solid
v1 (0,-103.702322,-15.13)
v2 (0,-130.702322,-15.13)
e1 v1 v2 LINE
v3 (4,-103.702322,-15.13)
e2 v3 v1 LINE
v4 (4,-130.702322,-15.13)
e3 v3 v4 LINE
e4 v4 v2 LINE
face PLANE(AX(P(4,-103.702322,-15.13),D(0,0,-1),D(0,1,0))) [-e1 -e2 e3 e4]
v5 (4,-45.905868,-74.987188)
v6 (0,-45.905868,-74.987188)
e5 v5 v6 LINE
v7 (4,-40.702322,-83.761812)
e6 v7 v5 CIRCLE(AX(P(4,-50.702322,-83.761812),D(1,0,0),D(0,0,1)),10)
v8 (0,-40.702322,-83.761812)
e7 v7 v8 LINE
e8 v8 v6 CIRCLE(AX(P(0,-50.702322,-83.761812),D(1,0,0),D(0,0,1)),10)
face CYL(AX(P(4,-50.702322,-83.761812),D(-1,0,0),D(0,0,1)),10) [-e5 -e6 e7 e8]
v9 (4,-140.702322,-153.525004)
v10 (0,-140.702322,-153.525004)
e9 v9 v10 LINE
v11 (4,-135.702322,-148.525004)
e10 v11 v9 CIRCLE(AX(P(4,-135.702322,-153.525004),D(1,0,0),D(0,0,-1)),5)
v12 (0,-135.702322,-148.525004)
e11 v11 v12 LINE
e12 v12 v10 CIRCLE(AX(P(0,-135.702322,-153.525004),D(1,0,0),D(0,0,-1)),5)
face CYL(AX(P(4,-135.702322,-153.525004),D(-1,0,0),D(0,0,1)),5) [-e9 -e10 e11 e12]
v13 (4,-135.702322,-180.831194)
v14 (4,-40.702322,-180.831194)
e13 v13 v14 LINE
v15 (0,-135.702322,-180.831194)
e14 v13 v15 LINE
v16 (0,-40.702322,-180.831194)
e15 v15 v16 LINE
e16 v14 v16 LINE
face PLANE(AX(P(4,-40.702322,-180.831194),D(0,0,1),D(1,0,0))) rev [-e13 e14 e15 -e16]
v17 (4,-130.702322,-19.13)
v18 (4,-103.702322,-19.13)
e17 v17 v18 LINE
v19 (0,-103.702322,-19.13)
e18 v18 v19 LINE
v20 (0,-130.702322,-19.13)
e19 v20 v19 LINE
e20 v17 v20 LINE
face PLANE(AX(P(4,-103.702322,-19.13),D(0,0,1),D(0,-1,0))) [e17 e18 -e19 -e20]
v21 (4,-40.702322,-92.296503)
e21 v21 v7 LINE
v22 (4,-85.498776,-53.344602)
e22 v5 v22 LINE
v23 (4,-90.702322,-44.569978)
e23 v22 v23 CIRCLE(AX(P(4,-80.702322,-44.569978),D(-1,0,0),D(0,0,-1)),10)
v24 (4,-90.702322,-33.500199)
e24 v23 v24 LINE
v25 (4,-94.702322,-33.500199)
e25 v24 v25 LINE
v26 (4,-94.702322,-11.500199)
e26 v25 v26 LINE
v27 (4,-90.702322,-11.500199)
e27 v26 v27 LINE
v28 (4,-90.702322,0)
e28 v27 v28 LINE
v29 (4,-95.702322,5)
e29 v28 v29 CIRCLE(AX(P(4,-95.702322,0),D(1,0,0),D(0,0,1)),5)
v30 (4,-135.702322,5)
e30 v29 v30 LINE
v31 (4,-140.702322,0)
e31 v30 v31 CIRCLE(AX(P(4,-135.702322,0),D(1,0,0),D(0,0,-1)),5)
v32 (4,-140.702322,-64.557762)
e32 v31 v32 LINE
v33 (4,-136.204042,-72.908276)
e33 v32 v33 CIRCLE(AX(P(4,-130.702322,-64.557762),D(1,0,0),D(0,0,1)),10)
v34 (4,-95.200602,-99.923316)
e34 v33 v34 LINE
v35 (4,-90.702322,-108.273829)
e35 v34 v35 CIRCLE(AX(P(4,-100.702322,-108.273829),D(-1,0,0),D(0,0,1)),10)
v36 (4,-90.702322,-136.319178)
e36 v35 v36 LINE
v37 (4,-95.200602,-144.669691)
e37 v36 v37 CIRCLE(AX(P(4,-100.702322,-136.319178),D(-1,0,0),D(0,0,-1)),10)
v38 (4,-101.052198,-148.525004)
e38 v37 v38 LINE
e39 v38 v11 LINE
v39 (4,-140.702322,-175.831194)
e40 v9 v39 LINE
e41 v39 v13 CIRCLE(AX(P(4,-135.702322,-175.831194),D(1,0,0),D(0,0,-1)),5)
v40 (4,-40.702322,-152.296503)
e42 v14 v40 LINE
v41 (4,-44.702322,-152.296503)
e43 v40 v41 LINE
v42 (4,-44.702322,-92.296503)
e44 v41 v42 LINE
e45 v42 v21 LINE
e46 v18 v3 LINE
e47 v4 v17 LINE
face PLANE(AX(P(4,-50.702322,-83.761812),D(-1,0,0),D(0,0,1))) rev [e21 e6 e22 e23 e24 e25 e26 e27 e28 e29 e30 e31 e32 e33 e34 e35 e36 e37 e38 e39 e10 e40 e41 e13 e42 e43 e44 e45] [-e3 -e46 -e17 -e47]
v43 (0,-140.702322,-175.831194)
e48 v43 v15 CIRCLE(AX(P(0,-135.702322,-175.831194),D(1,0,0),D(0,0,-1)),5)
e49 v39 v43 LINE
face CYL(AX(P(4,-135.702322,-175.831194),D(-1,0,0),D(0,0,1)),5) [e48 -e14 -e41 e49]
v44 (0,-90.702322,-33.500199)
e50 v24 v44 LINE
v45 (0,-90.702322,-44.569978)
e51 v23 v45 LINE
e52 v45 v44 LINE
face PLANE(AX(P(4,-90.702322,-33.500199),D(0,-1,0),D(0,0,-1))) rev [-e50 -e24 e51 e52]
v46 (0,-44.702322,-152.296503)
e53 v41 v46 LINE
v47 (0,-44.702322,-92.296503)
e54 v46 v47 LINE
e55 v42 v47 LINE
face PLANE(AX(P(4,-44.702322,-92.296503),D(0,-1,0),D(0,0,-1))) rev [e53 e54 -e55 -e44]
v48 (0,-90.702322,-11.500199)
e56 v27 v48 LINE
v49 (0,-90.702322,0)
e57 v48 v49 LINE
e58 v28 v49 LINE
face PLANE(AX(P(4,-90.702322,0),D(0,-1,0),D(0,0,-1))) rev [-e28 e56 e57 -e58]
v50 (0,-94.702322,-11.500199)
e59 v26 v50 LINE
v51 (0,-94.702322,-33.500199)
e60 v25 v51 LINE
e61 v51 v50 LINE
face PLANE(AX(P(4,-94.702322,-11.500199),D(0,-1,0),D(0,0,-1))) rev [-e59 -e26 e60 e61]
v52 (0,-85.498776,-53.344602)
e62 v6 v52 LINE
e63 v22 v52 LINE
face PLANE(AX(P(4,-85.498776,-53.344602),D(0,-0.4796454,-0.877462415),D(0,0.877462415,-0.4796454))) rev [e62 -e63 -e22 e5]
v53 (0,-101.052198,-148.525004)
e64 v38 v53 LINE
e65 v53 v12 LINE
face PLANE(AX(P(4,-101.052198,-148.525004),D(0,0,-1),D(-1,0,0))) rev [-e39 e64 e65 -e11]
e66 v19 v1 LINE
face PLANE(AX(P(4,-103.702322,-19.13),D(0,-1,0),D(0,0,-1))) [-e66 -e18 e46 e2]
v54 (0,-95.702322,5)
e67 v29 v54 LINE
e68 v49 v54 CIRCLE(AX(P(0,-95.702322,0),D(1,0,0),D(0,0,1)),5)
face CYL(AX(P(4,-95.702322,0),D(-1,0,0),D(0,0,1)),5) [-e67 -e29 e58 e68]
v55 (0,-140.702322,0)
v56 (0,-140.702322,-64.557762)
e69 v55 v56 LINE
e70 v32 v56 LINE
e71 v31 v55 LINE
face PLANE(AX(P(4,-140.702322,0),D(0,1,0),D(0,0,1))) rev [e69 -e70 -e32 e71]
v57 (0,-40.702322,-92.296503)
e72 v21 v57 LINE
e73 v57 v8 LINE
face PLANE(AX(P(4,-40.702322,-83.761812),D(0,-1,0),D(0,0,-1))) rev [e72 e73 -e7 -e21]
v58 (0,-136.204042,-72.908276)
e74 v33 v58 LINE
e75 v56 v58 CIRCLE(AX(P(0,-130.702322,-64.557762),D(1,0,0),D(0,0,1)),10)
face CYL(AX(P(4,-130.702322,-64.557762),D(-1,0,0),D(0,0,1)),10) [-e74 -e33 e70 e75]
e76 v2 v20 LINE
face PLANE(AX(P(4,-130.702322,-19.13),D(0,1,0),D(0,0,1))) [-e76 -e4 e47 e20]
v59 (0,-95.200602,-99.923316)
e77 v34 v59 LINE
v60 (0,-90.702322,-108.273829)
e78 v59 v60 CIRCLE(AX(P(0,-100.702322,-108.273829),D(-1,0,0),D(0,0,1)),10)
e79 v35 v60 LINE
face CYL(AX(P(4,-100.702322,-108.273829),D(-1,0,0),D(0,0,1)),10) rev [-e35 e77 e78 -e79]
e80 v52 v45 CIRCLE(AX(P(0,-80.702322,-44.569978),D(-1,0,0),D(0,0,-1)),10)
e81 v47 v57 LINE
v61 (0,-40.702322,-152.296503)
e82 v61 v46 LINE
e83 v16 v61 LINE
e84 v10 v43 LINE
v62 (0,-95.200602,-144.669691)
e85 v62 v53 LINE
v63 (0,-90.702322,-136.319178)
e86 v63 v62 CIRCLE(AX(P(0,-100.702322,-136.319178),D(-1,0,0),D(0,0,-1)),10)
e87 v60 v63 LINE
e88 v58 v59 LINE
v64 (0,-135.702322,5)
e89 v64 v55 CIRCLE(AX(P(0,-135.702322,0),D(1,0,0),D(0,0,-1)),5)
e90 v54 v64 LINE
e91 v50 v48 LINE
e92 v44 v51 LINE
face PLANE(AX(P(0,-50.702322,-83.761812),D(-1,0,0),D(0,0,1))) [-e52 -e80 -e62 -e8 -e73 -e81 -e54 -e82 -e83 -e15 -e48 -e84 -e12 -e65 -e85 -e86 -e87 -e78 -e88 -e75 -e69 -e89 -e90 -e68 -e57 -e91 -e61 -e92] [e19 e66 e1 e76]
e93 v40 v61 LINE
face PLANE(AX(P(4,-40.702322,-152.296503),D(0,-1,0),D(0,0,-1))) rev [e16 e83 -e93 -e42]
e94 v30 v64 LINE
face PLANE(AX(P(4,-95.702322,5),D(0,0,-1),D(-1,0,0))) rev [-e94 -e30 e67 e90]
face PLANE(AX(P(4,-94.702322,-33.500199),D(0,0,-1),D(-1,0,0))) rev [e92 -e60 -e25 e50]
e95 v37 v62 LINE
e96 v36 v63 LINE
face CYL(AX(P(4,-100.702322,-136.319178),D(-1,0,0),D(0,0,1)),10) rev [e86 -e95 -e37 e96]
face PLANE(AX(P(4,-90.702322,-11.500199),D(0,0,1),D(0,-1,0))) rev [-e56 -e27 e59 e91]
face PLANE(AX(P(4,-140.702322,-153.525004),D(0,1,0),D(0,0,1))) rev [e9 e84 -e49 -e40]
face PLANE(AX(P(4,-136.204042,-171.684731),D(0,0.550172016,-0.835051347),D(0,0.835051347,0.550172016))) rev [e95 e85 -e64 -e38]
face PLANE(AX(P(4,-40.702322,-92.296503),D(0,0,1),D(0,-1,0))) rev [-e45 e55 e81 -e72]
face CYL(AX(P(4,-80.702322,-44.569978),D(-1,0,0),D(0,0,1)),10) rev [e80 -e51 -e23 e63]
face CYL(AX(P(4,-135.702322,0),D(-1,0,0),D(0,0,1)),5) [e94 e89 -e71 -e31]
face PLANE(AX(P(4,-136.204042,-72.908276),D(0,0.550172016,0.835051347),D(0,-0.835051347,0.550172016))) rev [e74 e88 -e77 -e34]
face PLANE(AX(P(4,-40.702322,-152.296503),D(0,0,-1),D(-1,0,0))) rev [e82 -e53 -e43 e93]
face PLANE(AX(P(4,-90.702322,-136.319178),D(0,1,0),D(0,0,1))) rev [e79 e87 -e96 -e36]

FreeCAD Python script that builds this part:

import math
import FreeCAD as App
import Part
import Sketcher
from FreeCAD import Vector

doc = App.newDocument("Part")
body = doc.addObject("PartDesign::Body", "Body")

sketch1 = body.newObject("Sketcher::SketchObject", "Sketch")
sketch1.AttachmentSupport = (doc.getObject("YZ_Plane"), [""])
sketch1.MapMode = "FlatFace"
sketch1.addGeometry(Part.LineSegment(Vector(-45.9, -75, 0), Vector(-85.5, -53.3, 0)), False)
sketch1.addGeometry(Part.ArcOfCircle(Part.Circle(Vector(-80.7, -44.6, 0), Vector(0, 0, 1), 10), math.radians(180), math.radians(241)), False)
sketch1.addGeometry(Part.LineSegment(Vector(-90.7, -44.6, 0), Vector(-90.7, -33.5, 0)), False)
sketch1.addGeometry(Part.LineSegment(Vector(-90.7, -33.5, 0), Vector(-94.7, -33.5, 0)), False)
sketch1.addGeometry(Part.LineSegment(Vector(-94.7, -33.5, 0), Vector(-94.7, -11.5, 0)), False)
sketch1.addGeometry(Part.LineSegment(Vector(-94.7, -11.5, 0), Vector(-90.7, -11.5, 0)), False)
sketch1.addGeometry(Part.LineSegment(Vector(-90.7, -11.5, 0), Vector(-90.7, 0, 0)), False)
sketch1.addGeometry(Part.ArcOfCircle(Part.Circle(Vector(-95.7, 0, 0), Vector(0, 0, 1), 5), math.radians(0), math.radians(90)), False)
sketch1.addGeometry(Part.LineSegment(Vector(-95.7, 5, 0), Vector(-135.7, 5, 0)), False)
sketch1.addGeometry(Part.ArcOfCircle(Part.Circle(Vector(-135.7, 0, 0), Vector(0, 0, 1), 5), math.radians(90), math.radians(180)), False)
sketch1.addGeometry(Part.LineSegment(Vector(-140.7, 0, 0), Vector(-140.7, -64.6, 0)), False)
sketch1.addGeometry(Part.ArcOfCircle(Part.Circle(Vector(-130.7, -64.6, 0), Vector(0, 0, 1), 10), math.radians(-180), math.radians(-123)), False)
sketch1.addGeometry(Part.LineSegment(Vector(-136.2, -72.9, 0), Vector(-95.2, -99.9, 0)), False)
sketch1.addGeometry(Part.ArcOfCircle(Part.Circle(Vector(-100.7, -108.3, 0), Vector(0, 0, 1), 10), math.radians(0), math.radians(57)), False)
sketch1.addGeometry(Part.LineSegment(Vector(-90.7, -108.3, 0), Vector(-90.7, -136.3, 0)), False)
sketch1.addGeometry(Part.ArcOfCircle(Part.Circle(Vector(-100.7, -136.3, 0), Vector(0, 0, 1), 10), math.radians(-57), math.radians(0)), False)
sketch1.addGeometry(Part.LineSegment(Vector(-95.2, -144.7, 0), Vector(-136.2, -171.7, 0)), False)
sketch1.addGeometry(Part.ArcOfCircle(Part.Circle(Vector(-130.7, -180, 0), Vector(0, 0, 1), 10), math.radians(123), math.radians(180)), False)
sketch1.addGeometry(Part.LineSegment(Vector(-140.7, -180, 0), Vector(-140.7, -244, 0)), False)
sketch1.addGeometry(Part.ArcOfCircle(Part.Circle(Vector(-135.7, -244, 0), Vector(0, 0, 1), 5), math.radians(-180), math.radians(-91)), False)
sketch1.addGeometry(Part.LineSegment(Vector(-135.8, -249, 0), Vector(-95.8, -249.9, 0)), False)
sketch1.addGeometry(Part.ArcOfCircle(Part.Circle(Vector(-95.7, -244.9, 0), Vector(0, 0, 1), 5), math.radians(-91), math.radians(0)), False)
sketch1.addGeometry(Part.LineSegment(Vector(-90.7, -244.9, 0), Vector(-90.7, -233.1, 0)), False)
sketch1.addGeometry(Part.LineSegment(Vector(-90.7, -233.1, 0), Vector(-94.7, -233.1, 0)), False)
sketch1.addGeometry(Part.LineSegment(Vector(-94.7, -233.1, 0), Vector(-94.7, -211.1, 0)), False)
sketch1.addGeometry(Part.LineSegment(Vector(-94.7, -211.1, 0), Vector(-90.7, -211.1, 0)), False)
sketch1.addGeometry(Part.LineSegment(Vector(-90.7, -211.1, 0), Vector(-90.7, -200, 0)), False)
sketch1.addGeometry(Part.ArcOfCircle(Part.Circle(Vector(-80.7, -200, 0), Vector(0, 0, 1), 10), math.radians(119), math.radians(180)), False)
sketch1.addGeometry(Part.LineSegment(Vector(-85.5, -191.2, 0), Vector(-45.9, -169.6, 0)), False)
sketch1.addGeometry(Part.ArcOfCircle(Part.Circle(Vector(-50.7, -160.8, 0), Vector(0, 0, 1), 10), math.radians(-61), math.radians(0)), False)
sketch1.addGeometry(Part.LineSegment(Vector(-40.7, -160.8, 0), Vector(-40.7, -152.3, 0)), False)
sketch1.addGeometry(Part.LineSegment(Vector(-40.7, -152.3, 0), Vector(-44.7, -152.3, 0)), False)
sketch1.addGeometry(Part.LineSegment(Vector(-44.7, -152.3, 0), Vector(-44.7, -92.3, 0)), False)
sketch1.addGeometry(Part.LineSegment(Vector(-44.7, -92.3, 0), Vector(-40.7, -92.3, 0)), False)
sketch1.addGeometry(Part.LineSegment(Vector(-40.7, -92.3, 0), Vector(-40.7, -83.8, 0)), False)
sketch1.addGeometry(Part.ArcOfCircle(Part.Circle(Vector(-50.7, -83.8, 0), Vector(0, 0, 1), 10), math.radians(0), math.radians(61)), False)
sketch1.addGeometry(Part.LineSegment(Vector(-130.7, -225.5, 0), Vector(-103.7, -225.5, 0)), False)
sketch1.addGeometry(Part.LineSegment(Vector(-103.7, -225.5, 0), Vector(-103.7, -229.5, 0)), False)
sketch1.addGeometry(Part.LineSegment(Vector(-103.7, -229.5, 0), Vector(-130.7, -229.5, 0)), False)
sketch1.addGeometry(Part.LineSegment(Vector(-130.7, -229.5, 0), Vector(-130.7, -225.5, 0)), False)
sketch1.addGeometry(Part.LineSegment(Vector(-130.7, -15.1, 0), Vector(-103.7, -15.1, 0)), False)
sketch1.addGeometry(Part.LineSegment(Vector(-103.7, -15.1, 0), Vector(-103.7, -19.1, 0)), False)
sketch1.addGeometry(Part.LineSegment(Vector(-103.7, -19.1, 0), Vector(-130.7, -19.1, 0)), False)
sketch1.addGeometry(Part.LineSegment(Vector(-130.7, -19.1, 0), Vector(-130.7, -15.1, 0)), False)
sketch1.addConstraint(Sketcher.Constraint("Tangent", 0, 2, 1, 2))
sketch1.addConstraint(Sketcher.Constraint("Tangent", 1, 1, 2, 1))
sketch1.addConstraint(Sketcher.Constraint("Coincident", 2, 2, 3, 1))
sketch1.addConstraint(Sketcher.Constraint("Coincident", 3, 2, 4, 1))
sketch1.addConstraint(Sketcher.Constraint("Coincident", 4, 2, 5, 1))
sketch1.addConstraint(Sketcher.Constraint("Coincident", 5, 2, 6, 1))
sketch1.addConstraint(Sketcher.Constraint("Tangent", 6, 2, 7, 1))
sketch1.addConstraint(Sketcher.Constraint("Tangent", 7, 2, 8, 1))
sketch1.addConstraint(Sketcher.Constraint("Tangent", 8, 2, 9, 1))
sketch1.addConstraint(Sketcher.Constraint("Tangent", 9, 2, 10, 1))
sketch1.addConstraint(Sketcher.Constraint("Tangent", 10, 2, 11, 1))
sketch1.addConstraint(Sketcher.Constraint("Tangent", 11, 2, 12, 1))
sketch1.addConstraint(Sketcher.Constraint("Tangent", 12, 2, 13, 2))
sketch1.addConstraint(Sketcher.Constraint("Tangent", 13, 1, 14, 1))
sketch1.addConstraint(Sketcher.Constraint("Tangent", 14, 2, 15, 2))
sketch1.addConstraint(Sketcher.Constraint("Tangent", 15, 1, 16, 1))
sketch1.addConstraint(Sketcher.Constraint("Tangent", 16, 2, 17, 1))
sketch1.addConstraint(Sketcher.Constraint("Tangent", 17, 2, 18, 1))
sketch1.addConstraint(Sketcher.Constraint("Tangent", 18, 2, 19, 1))
sketch1.addConstraint(Sketcher.Constraint("Tangent", 19, 2, 20, 1))
sketch1.addConstraint(Sketcher.Constraint("Tangent", 20, 2, 21, 1))
sketch1.addConstraint(Sketcher.Constraint("Tangent", 21, 2, 22, 1))
sketch1.addConstraint(Sketcher.Constraint("Coincident", 22, 2, 23, 1))
sketch1.addConstraint(Sketcher.Constraint("Coincident", 23, 2, 24, 1))
sketch1.addConstraint(Sketcher.Constraint("Coincident", 24, 2, 25, 1))
sketch1.addConstraint(Sketcher.Constraint("Coincident", 25, 2, 26, 1))
sketch1.addConstraint(Sketcher.Constraint("Tangent", 26, 2, 27, 2))
sketch1.addConstraint(Sketcher.Constraint("Tangent", 27, 1, 28, 1))
sketch1.addConstraint(Sketcher.Constraint("Tangent", 28, 2, 29, 1))
sketch1.addConstraint(Sketcher.Constraint("Tangent", 29, 2, 30, 1))
sketch1.addConstraint(Sketcher.Constraint("Coincident", 30, 2, 31, 1))
sketch1.addConstraint(Sketcher.Constraint("Coincident", 31, 2, 32, 1))
sketch1.addConstraint(Sketcher.Constraint("Coincident", 32, 2, 33, 1))
sketch1.addConstraint(Sketcher.Constraint("Coincident", 33, 2, 34, 1))
sketch1.addConstraint(Sketcher.Constraint("Tangent", 34, 2, 35, 1))
sketch1.addConstraint(Sketcher.Constraint("Tangent", 35, 2, 0, 1))
sketch1.addConstraint(Sketcher.Constraint("Coincident", 36, 2, 37, 1))
sketch1.addConstraint(Sketcher.Constraint("Coincident", 37, 2, 38, 1))
sketch1.addConstraint(Sketcher.Constraint("Coincident", 38, 2, 39, 1))
sketch1.addConstraint(Sketcher.Constraint("Coincident", 39, 2, 36, 1))
sketch1.addConstraint(Sketcher.Constraint("Coincident", 40, 2, 41, 1))
sketch1.addConstraint(Sketcher.Constraint("Coincident", 41, 2, 42, 1))
sketch1.addConstraint(Sketcher.Constraint("Coincident", 42, 2, 43, 1))
sketch1.addConstraint(Sketcher.Constraint("Coincident", 43, 2, 40, 1))
sketch1.addConstraint(Sketcher.Constraint("Vertical", 2))
sketch1.addConstraint(Sketcher.Constraint("Horizontal", 3))
sketch1.addConstraint(Sketcher.Constraint("Vertical", 4))
sketch1.addConstraint(Sketcher.Constraint("Horizontal", 5))
sketch1.addConstraint(Sketcher.Constraint("Vertical", 6))
sketch1.addConstraint(Sketcher.Constraint("Horizontal", 8))
sketch1.addConstraint(Sketcher.Constraint("Vertical", 10))
sketch1.addConstraint(Sketcher.Constraint("Vertical", 14))
sketch1.addConstraint(Sketcher.Constraint("Vertical", 18))
sketch1.addConstraint(Sketcher.Constraint("Vertical", 22))
sketch1.addConstraint(Sketcher.Constraint("Horizontal", 23))
sketch1.addConstraint(Sketcher.Constraint("Vertical", 24))
sketch1.addConstraint(Sketcher.Constraint("Horizontal", 25))
sketch1.addConstraint(Sketcher.Constraint("Vertical", 26))
sketch1.addConstraint(Sketcher.Constraint("Vertical", 30))
sketch1.addConstraint(Sketcher.Constraint("Horizontal", 31))
sketch1.addConstraint(Sketcher.Constraint("Vertical", 32))
sketch1.addConstraint(Sketcher.Constraint("Horizontal", 33))
sketch1.addConstraint(Sketcher.Constraint("Vertical", 34))
sketch1.addConstraint(Sketcher.Constraint("Horizontal", 36))
sketch1.addConstraint(Sketcher.Constraint("Vertical", 37))
sketch1.addConstraint(Sketcher.Constraint("Horizontal", 38))
sketch1.addConstraint(Sketcher.Constraint("Vertical", 39))
sketch1.addConstraint(Sketcher.Constraint("Horizontal", 40))
sketch1.addConstraint(Sketcher.Constraint("Vertical", 41))
sketch1.addConstraint(Sketcher.Constraint("Horizontal", 42))
sketch1.addConstraint(Sketcher.Constraint("Vertical", 43))
sketch1.addConstraint(Sketcher.Constraint("Equal", 7, 9))
sketch1.addConstraint(Sketcher.Constraint("Equal", 1, 11))
sketch1.addConstraint(Sketcher.Constraint("Equal", 11, 13))
sketch1.addConstraint(Sketcher.Constraint("Equal", 13, 15))
sketch1.addConstraint(Sketcher.Constraint("Equal", 15, 17))
sketch1.addConstraint(Sketcher.Constraint("Equal", 9, 19))
sketch1.addConstraint(Sketcher.Constraint("Equal", 19, 21))
sketch1.addConstraint(Sketcher.Constraint("Equal", 17, 27))
sketch1.addConstraint(Sketcher.Constraint("Equal", 27, 29))
sketch1.addConstraint(Sketcher.Constraint("Equal", 29, 35))
sketch1.addConstraint(Sketcher.Constraint("PointOnObject", 7, 3, -1))
sketch1.addConstraint(Sketcher.Constraint("Vertical", 11, 3, 17, 3))
sketch1.addConstraint(Sketcher.Constraint("Vertical", 7, 3, 21, 3))
sketch1.addConstraint(Sketcher.Constraint("Vertical", 1, 3, 27, 3))
sketch1.addConstraint(Sketcher.Constraint("Vertical", 29, 3, 35, 3))
sketch1.addConstraint(Sketcher.Constraint("Vertical", 2, 2, 5, 2))
sketch1.addConstraint(Sketcher.Constraint("Vertical", 6, 2, 13, 1))
sketch1.addConstraint(Sketcher.Constraint("Vertical", 12, 2, 15, 1))
sketch1.addConstraint(Sketcher.Constraint("Vertical", 4, 2, 23, 2))
sketch1.addConstraint(Sketcher.Constraint("Vertical", 0, 2, 27, 1))
sketch1.addConstraint(Sketcher.Constraint("Vertical", 17, 3, 38, 2))
sketch1.addConstraint(Sketcher.Constraint("Vertical", 37, 2, 40, 2))
sketch1.addConstraint(Sketcher.Constraint("Vertical", 39, 2, 42, 2))
sketch1.addConstraint(Sketcher.Constraint("Equal", 25, 31))
sketch1.addConstraint(Sketcher.Constraint("Equal", 4, 24))
sketch1.addConstraint(Sketcher.Constraint("Equal", 2, 26))
sketch1.addConstraint(Sketcher.Constraint("Equal", 30, 34))
sketch1.addConstraint(Sketcher.Constraint("Equal", 33, 37))
sketch1.addConstraint(Sketcher.Constraint("Equal", 39, 41))
sketch1.addConstraint(Sketcher.Constraint("Radius", 1, 10.0))
sketch1.addConstraint(Sketcher.Constraint("Radius", 7, 5.0))
sketch1.addConstraint(Sketcher.Constraint("DistanceX", 3, 2, 3, 1, 4.0))
sketch1.addConstraint(Sketcher.Constraint("DistanceX", 8, 2, 8, 1, 40.0))
sketch1.addConstraint(Sketcher.Constraint("DistanceX", 36, 1, 36, 2, 27.0))
sketch1.addConstraint(Sketcher.Constraint("DistanceY", 4, 1, 4, 2, 22.0))
sketch1.addConstraint(Sketcher.Constraint("DistanceY", 32, 1, 32, 2, 60.0))
sketch1.addConstraint(Sketcher.Constraint("DistanceX", 27, 3, 29, 3, 30.0))
sketch1.addConstraint(Sketcher.Constraint("DistanceY", 40, 2, -1, 1, 15.13))
sketch1.addConstraint(Sketcher.Constraint("DistanceY", 19, 3, 11, 3, 179.429998))
sketch1.addConstraint(Sketcher.Constraint("DistanceY", 6, 1, 6, 2, 11.500199))
sketch1.addConstraint(Sketcher.Constraint("DistanceY", 2, 1, 2, 2, 11.069779))
sketch1.addConstraint(Sketcher.Constraint("DistanceY", 14, 2, 14, 1, 28.045348))
sketch1.addConstraint(Sketcher.Constraint("DistanceY", 30, 1, 30, 2, 8.534691))
sketch1.addConstraint(Sketcher.Constraint("DistanceY", 0, 2, -1, 1, 53.344602))
sketch1.addConstraint(Sketcher.Constraint("DistanceX", 12, 2, -1, 1, 95.200602))
sketch1.addConstraint(Sketcher.Constraint("DistanceY", 15, 3, 1, 3, 91.7492))
sketch1.addConstraint(Sketcher.Constraint("DistanceY", 11, 2, 1, 1, 28.338298))
sketch1.addConstraint(Sketcher.Constraint("DistanceY", 23, 2, 36, 2, 7.629801))
sketch1.addConstraint(Sketcher.Constraint("Distance", 20, 40.011291))
pad1 = body.newObject("PartDesign::Pad", "Pad")
pad1.Profile = sketch1
pad1.Length = 4

sketch2 = body.newObject("Sketcher::SketchObject", "Sketch001")
sketch2.AttachmentSupport = (doc.getObject("YZ_Plane"), [""])
sketch2.MapMode = "FlatFace"
sketch2.addGeometry(Part.LineSegment(Vector(-144, -161, 0), Vector(-144, -258, 0)), False)
sketch2.addGeometry(Part.LineSegment(Vector(-144, -258, 0), Vector(-26, -258, 0)), False)
sketch2.addGeometry(Part.LineSegment(Vector(-26, -258, 0), Vector(-35, -161, 0)), False)
sketch2.addGeometry(Part.LineSegment(Vector(-35, -161, 0), Vector(-144, -161, 0)), False)
sketch2.addConstraint(Sketcher.Constraint("Coincident", 0, 2, 1, 1))
sketch2.addConstraint(Sketcher.Constraint("Coincident", 1, 2, 2, 1))
sketch2.addConstraint(Sketcher.Constraint("Coincident", 2, 2, 3, 1))
sketch2.addConstraint(Sketcher.Constraint("Coincident", 3, 2, 0, 1))
sketch2.addConstraint(Sketcher.Constraint("Vertical", 0))
sketch2.addConstraint(Sketcher.Constraint("Horizontal", 1))
sketch2.addConstraint(Sketcher.Constraint("Horizontal", 3))
sketch2.addConstraint(Sketcher.Constraint("DistanceX", 3, 2, 3, 1, 109.557041))
sketch2.addConstraint(Sketcher.Constraint("DistanceX", 1, 1, 1, 2, 118.916788))
sketch2.addConstraint(Sketcher.Constraint("DistanceY", 0, 2, 0, 1, 97.044154))
sketch2.addConstraint(Sketcher.Constraint("DistanceX", 0, 2, -1, 1, 144.46087))
sketch2.addConstraint(Sketcher.Constraint("DistanceY", 0, 2, -1, 1, 257.875348))
pocket1 = body.newObject("PartDesign::Pocket", "Pocket")
pocket1.Profile = sketch2
pocket1.Length = 10
pocket1.Reversed = True

sketch3 = body.newObject("Sketcher::SketchObject", "Sketch002")
sketch3.AttachmentSupport = (doc.getObject("YZ_Plane"), [""])
sketch3.MapMode = "FlatFace"
sketch3.addGeometry(Part.LineSegment(Vector(-41, -181, 0), Vector(-41, -161, 0)), False)
sketch3.addGeometry(Part.LineSegment(Vector(-41, -161, 0), Vector(-101, -149, 0)), False)
sketch3.addGeometry(Part.LineSegment(Vector(-101, -149, 0), Vector(-136, -149, 0)), False)
sketch3.addGeometry(Part.ArcOfCircle(Part.Circle(Vector(-136, -154, 0), Vector(0, 0, 1), 5), math.radians(90), math.radians(180)), False)
sketch3.addGeometry(Part.LineSegment(Vector(-141, -154, 0), Vector(-141, -176, 0)), False)
sketch3.addGeometry(Part.ArcOfCircle(Part.Circle(Vector(-136, -176, 0), Vector(0, 0, 1), 5), math.radians(-180), math.radians(-90)), False)
sketch3.addGeometry(Part.LineSegment(Vector(-136, -181, 0), Vector(-41, -181, 0)), False)
sketch3.addConstraint(Sketcher.Constraint("Coincident", 0, 2, 1, 1))
sketch3.addConstraint(Sketcher.Constraint("Coincident", 1, 2, 2, 1))
sketch3.addConstraint(Sketcher.Constraint("Tangent", 2, 2, 3, 1))
sketch3.addConstraint(Sketcher.Constraint("Tangent", 3, 2, 4, 1))
sketch3.addConstraint(Sketcher.Constraint("Tangent", 4, 2, 5, 1))
sketch3.addConstraint(Sketcher.Constraint("Tangent", 5, 2, 6, 1))
sketch3.addConstraint(Sketcher.Constraint("Coincident", 6, 2, 0, 1))
sketch3.addConstraint(Sketcher.Constraint("Vertical", 0))
sketch3.addConstraint(Sketcher.Constraint("Horizontal", 2))
sketch3.addConstraint(Sketcher.Constraint("Vertical", 4))
sketch3.addConstraint(Sketcher.Constraint("Horizontal", 6))
sketch3.addConstraint(Sketcher.Constraint("Equal", 3, 5))
sketch3.addConstraint(Sketcher.Constraint("Radius", 3, 5.0))
sketch3.addConstraint(Sketcher.Constraint("DistanceX", 6, 1, 6, 2, 95.0))
sketch3.addConstraint(Sketcher.Constraint("DistanceY", 0, 1, 0, 2, 20.0))
sketch3.addConstraint(Sketcher.Constraint("Distance", 1, 61.5918))
sketch3.addConstraint(Sketcher.Constraint("DistanceY", 4, 2, 4, 1, 22.30619))
sketch3.addConstraint(Sketcher.Constraint("DistanceX", 1, 2, -1, 1, 101.052198))
sketch3.addConstraint(Sketcher.Constraint("DistanceY", 3, 3, -1, 1, 153.525004))
pad2 = body.newObject("PartDesign::Pad", "Pad001")
pad2.Profile = sketch3
pad2.Length = 4

doc.recompute()
